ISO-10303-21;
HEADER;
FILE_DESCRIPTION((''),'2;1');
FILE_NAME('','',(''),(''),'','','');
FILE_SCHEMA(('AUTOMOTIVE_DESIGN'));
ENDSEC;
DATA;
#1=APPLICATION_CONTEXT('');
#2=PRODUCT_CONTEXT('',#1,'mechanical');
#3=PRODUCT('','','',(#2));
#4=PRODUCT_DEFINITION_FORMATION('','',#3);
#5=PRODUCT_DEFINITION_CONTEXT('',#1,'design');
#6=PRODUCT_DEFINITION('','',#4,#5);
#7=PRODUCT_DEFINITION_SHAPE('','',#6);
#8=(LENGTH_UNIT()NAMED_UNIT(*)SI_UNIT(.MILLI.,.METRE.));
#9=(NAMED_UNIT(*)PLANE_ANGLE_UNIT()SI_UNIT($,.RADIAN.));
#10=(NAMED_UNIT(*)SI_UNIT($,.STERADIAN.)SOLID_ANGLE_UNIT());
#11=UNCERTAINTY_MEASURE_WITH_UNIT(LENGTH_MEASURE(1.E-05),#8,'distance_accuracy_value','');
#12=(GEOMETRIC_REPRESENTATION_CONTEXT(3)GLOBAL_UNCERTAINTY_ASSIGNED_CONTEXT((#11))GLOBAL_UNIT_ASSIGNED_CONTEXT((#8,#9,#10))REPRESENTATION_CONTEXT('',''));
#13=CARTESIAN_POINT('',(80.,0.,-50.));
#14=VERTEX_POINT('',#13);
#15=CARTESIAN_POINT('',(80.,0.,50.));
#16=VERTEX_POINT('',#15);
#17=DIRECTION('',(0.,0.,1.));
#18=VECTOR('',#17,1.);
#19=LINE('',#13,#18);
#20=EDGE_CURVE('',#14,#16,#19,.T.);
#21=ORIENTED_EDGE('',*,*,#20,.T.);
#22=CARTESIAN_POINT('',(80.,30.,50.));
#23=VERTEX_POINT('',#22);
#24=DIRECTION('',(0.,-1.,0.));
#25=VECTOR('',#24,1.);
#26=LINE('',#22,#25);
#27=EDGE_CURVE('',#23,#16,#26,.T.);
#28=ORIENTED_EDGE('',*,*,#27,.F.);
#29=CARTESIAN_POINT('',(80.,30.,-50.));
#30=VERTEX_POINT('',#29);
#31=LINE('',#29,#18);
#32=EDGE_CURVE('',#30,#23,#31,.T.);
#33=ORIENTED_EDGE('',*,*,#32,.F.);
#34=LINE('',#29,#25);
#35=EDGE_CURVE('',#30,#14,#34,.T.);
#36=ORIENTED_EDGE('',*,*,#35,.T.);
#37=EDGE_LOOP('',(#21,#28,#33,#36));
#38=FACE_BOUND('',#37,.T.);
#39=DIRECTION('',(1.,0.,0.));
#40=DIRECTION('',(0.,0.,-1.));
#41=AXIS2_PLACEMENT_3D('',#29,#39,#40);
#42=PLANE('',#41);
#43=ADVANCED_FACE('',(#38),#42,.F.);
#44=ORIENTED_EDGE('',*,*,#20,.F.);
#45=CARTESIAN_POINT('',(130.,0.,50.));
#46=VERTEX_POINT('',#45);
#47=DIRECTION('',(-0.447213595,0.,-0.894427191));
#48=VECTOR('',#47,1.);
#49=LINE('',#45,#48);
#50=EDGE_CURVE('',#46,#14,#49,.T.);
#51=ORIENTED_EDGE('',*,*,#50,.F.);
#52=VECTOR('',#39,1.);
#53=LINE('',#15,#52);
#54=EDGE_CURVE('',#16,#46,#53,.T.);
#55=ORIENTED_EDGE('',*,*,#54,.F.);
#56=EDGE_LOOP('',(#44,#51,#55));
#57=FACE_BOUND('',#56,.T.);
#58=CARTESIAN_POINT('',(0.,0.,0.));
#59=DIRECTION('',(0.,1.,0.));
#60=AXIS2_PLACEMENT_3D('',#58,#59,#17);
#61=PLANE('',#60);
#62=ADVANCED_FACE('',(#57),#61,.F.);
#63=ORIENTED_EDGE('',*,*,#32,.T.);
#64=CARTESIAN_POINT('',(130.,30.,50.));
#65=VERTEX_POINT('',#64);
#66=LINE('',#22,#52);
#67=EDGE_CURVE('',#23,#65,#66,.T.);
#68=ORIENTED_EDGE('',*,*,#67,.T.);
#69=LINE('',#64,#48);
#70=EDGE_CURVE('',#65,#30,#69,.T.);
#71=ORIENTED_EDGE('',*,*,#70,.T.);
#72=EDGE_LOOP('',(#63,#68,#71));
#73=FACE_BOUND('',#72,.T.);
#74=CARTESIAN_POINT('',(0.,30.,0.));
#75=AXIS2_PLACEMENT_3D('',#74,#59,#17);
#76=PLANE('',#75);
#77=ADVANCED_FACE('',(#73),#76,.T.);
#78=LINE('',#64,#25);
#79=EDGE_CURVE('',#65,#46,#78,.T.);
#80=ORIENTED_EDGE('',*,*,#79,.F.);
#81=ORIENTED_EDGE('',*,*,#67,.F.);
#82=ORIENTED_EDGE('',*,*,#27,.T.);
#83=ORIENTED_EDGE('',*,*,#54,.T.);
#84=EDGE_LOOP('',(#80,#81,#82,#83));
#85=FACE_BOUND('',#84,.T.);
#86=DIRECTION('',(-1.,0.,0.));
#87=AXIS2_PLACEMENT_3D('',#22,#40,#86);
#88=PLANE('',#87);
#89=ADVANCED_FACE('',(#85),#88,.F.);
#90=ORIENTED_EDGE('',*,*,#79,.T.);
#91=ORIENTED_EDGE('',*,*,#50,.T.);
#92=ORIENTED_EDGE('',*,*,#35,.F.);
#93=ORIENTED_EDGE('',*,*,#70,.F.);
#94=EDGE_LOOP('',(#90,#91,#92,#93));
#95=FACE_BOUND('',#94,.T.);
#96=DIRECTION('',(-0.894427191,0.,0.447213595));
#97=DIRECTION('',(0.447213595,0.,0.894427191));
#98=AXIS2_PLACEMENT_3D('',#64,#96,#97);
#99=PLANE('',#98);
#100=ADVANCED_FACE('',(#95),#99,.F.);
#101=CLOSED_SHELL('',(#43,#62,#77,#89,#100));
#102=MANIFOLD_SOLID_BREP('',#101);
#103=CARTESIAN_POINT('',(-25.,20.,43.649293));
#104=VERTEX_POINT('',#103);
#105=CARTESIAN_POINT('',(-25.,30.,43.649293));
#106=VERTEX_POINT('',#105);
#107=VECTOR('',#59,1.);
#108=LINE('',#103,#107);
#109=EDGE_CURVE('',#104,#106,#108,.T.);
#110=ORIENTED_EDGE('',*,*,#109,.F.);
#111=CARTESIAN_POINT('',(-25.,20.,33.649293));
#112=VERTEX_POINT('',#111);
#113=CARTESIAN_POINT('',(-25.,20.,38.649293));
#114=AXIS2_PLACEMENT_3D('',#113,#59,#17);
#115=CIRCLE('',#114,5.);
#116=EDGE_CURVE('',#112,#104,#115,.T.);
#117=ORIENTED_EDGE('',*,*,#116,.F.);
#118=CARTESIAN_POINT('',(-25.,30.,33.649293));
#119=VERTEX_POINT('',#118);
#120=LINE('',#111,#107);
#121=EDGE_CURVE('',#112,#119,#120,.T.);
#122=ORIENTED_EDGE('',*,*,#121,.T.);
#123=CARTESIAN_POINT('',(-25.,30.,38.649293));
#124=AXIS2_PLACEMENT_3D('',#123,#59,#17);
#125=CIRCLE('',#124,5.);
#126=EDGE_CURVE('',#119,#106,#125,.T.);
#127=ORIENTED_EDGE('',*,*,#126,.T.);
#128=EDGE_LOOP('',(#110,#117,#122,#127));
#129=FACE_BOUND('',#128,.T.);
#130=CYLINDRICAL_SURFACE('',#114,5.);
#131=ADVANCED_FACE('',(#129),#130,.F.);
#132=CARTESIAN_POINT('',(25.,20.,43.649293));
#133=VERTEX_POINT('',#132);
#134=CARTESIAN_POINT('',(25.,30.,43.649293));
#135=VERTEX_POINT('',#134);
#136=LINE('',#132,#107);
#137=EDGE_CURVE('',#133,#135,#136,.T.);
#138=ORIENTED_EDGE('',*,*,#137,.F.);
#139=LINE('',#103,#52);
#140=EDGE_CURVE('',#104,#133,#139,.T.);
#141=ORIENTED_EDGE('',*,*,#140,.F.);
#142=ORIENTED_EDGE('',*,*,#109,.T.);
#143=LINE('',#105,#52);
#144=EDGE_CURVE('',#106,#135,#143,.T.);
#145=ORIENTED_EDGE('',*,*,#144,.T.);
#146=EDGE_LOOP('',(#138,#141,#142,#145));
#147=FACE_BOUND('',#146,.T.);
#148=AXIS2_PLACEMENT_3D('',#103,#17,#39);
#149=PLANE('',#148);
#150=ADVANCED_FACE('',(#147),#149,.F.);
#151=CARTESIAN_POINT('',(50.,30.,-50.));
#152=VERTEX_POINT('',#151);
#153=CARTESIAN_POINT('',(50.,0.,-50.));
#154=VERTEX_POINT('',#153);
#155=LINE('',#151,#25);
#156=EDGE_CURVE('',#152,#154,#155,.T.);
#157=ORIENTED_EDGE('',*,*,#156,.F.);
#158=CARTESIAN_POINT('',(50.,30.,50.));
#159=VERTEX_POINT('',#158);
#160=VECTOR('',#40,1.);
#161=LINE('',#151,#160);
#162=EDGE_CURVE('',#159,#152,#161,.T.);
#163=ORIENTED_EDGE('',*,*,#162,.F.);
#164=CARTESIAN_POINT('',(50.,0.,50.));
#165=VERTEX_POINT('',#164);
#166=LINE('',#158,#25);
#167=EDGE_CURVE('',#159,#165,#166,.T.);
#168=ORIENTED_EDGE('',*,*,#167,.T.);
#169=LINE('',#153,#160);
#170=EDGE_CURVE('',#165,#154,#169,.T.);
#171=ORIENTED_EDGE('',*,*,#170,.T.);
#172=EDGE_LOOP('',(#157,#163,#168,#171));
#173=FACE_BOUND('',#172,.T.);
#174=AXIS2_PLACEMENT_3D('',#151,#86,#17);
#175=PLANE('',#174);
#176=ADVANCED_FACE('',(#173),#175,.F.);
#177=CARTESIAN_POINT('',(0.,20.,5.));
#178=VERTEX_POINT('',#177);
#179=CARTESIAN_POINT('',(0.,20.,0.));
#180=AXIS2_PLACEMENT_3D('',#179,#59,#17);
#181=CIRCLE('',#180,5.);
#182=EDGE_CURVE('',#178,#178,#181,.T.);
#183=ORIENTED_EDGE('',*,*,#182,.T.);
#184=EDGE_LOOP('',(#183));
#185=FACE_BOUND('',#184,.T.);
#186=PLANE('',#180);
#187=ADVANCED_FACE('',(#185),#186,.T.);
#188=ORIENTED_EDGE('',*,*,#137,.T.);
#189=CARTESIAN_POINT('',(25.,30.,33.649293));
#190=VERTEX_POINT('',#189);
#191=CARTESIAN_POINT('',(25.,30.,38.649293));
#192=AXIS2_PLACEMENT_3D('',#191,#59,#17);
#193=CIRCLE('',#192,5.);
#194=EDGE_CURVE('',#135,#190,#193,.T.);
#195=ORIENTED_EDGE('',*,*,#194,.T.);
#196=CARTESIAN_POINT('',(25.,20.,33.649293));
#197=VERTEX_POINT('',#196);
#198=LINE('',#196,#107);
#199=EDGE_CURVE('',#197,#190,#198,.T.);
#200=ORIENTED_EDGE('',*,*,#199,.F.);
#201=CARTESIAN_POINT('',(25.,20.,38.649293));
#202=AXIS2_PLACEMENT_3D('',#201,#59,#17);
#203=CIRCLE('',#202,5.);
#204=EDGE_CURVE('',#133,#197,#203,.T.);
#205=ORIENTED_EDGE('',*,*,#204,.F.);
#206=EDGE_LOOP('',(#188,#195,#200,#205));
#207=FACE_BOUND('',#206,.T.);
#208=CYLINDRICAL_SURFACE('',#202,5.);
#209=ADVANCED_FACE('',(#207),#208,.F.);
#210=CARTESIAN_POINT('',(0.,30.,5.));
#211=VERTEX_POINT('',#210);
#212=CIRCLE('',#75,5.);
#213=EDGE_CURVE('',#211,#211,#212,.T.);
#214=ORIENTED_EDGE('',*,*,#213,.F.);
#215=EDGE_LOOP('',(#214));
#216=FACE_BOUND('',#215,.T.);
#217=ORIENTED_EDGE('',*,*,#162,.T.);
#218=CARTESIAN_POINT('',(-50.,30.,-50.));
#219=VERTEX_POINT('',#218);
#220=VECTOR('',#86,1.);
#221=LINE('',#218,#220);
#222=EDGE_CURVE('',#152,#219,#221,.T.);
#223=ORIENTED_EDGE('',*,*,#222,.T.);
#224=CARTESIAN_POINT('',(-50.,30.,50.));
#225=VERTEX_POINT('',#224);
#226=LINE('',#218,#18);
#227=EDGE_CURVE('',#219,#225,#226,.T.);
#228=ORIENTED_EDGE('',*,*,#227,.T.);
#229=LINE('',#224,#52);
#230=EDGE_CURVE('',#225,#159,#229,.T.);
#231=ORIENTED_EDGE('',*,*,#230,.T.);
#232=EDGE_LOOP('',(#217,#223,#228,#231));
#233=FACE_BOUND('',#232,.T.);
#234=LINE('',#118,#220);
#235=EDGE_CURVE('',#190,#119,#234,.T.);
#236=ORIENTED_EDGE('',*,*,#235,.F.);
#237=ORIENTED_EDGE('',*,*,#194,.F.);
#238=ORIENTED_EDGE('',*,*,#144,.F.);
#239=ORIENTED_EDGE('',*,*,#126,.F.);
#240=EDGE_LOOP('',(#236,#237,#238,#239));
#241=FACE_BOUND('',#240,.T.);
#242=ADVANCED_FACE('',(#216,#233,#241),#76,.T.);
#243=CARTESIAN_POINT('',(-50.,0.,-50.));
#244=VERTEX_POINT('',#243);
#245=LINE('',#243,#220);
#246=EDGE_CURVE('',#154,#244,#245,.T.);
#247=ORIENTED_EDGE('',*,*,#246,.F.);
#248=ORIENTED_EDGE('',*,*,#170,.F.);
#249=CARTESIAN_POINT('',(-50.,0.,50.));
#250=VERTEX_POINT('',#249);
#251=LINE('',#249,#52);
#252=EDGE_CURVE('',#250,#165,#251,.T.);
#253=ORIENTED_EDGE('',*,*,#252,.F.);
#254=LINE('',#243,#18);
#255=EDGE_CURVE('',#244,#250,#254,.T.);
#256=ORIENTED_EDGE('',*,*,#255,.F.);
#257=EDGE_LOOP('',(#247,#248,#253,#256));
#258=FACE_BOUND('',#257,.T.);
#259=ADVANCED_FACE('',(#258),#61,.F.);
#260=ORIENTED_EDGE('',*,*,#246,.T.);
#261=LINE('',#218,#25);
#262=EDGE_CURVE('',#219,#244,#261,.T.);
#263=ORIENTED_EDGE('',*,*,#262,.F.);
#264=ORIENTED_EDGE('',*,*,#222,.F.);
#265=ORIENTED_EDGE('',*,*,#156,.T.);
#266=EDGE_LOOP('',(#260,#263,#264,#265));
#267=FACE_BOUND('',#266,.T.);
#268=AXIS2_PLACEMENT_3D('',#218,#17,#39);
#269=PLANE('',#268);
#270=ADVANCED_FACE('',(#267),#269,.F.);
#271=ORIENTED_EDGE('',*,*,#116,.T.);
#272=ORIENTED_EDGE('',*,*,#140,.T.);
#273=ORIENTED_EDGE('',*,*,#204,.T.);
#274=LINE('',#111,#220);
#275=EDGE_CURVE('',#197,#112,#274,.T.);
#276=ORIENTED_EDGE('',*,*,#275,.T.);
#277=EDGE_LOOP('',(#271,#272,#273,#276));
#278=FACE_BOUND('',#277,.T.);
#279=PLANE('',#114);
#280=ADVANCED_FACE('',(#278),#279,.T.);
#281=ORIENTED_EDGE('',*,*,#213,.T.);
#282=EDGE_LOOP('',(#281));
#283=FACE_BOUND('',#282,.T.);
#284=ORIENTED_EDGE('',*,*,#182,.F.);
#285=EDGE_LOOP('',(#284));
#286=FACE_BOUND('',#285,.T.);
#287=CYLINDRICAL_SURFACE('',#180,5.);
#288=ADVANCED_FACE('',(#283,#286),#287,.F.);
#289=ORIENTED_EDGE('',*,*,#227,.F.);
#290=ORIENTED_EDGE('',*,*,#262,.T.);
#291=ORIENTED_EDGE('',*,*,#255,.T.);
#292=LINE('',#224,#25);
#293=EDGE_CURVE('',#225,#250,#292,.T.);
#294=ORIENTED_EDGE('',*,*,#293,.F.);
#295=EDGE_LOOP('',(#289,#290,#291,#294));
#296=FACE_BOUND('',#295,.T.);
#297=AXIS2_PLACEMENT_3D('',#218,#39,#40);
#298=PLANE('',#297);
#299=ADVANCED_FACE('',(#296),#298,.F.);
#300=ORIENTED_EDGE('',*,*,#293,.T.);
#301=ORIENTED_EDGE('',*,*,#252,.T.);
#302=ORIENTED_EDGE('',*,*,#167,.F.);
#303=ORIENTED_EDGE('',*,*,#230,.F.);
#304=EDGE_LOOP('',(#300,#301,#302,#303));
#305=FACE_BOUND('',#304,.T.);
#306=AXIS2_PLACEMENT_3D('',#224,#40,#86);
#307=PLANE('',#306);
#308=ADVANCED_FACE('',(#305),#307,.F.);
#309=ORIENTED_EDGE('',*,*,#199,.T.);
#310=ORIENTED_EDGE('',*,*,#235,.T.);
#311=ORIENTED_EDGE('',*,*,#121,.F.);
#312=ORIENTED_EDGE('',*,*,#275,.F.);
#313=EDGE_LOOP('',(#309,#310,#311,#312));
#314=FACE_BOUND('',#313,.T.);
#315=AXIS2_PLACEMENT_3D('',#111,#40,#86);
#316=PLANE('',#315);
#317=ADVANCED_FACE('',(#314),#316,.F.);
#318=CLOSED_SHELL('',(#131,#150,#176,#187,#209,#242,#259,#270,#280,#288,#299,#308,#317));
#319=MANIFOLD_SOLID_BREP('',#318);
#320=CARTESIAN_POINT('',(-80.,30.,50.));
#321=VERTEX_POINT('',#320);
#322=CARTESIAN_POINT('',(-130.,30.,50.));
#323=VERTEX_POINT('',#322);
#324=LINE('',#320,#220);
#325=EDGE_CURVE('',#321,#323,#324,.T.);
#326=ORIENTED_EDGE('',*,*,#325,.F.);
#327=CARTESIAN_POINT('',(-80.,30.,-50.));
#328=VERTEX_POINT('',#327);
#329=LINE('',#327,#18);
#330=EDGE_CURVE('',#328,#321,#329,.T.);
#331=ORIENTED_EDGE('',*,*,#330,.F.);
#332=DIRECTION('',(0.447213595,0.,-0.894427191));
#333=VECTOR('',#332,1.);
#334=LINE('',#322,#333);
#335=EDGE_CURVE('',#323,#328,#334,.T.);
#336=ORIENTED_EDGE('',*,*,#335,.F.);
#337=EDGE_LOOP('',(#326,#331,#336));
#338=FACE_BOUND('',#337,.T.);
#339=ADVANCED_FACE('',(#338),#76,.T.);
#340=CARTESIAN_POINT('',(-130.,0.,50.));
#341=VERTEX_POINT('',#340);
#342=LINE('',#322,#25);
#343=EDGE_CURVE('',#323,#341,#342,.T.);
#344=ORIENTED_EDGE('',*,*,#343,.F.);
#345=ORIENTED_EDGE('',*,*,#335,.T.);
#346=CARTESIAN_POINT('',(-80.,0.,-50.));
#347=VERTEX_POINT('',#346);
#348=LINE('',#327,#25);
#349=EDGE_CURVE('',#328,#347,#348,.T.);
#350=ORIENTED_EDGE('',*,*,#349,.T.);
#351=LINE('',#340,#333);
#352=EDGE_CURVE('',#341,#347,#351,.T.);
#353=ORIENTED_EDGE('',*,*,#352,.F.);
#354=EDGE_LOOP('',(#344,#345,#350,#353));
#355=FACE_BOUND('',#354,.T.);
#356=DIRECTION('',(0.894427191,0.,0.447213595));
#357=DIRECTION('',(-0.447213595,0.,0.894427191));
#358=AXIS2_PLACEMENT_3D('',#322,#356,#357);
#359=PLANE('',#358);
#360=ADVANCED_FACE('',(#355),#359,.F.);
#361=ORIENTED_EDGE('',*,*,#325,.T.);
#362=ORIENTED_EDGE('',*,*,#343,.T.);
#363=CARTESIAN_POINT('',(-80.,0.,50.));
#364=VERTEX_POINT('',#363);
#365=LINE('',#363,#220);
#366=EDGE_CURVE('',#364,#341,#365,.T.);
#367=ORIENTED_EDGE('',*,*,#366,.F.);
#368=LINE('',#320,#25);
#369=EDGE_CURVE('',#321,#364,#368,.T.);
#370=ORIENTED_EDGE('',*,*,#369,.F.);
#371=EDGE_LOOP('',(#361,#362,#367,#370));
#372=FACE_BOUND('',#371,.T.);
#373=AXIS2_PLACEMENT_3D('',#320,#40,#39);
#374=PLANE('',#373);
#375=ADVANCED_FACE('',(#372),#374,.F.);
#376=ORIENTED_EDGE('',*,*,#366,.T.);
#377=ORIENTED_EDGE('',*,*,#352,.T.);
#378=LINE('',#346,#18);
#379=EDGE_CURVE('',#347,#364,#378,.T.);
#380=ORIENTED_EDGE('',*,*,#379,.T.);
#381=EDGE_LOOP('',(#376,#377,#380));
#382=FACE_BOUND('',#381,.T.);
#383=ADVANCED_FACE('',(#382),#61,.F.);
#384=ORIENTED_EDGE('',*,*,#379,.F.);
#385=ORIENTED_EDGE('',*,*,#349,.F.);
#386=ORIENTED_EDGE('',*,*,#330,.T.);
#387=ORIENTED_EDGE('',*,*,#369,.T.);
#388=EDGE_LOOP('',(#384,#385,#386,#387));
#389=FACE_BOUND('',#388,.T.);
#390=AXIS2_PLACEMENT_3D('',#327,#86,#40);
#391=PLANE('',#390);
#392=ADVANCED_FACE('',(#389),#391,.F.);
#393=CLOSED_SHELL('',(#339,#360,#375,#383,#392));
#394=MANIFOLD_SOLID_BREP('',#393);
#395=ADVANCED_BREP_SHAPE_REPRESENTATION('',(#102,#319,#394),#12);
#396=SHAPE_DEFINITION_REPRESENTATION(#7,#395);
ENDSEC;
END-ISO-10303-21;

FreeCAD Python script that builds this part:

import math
import FreeCAD as App
import Part
import Sketcher
from FreeCAD import Vector
Q = App.Units.Quantity

doc = App.newDocument("Part")
body = doc.addObject("PartDesign::Body", "Body")

# Sketch on XZ plane
sketch1 = body.newObject("Sketcher::SketchObject", "Sketch")
sketch1.AttachmentSupport = (doc.getObject("XZ_Plane"), [""])
sketch1.MapMode = "FlatFace"
sketch1.addGeometry([
    Part.LineSegment(Vector(80, 50, 0), Vector(130, 50, 0)),
    Part.LineSegment(Vector(130, 50, 0), Vector(80, -50, 0)),
    Part.LineSegment(Vector(80, -50, 0), Vector(80, 50, 0)),
], False)
sketch1.addConstraint([
    Sketcher.Constraint("Coincident", 0, 2, 1, 1),
    Sketcher.Constraint("Coincident", 1, 2, 2, 1),
    Sketcher.Constraint("Coincident", 2, 2, 0, 1),
    Sketcher.Constraint("Horizontal", 0),
    Sketcher.Constraint("Vertical", 2),
    Sketcher.Constraint("DistanceX", 0, 1, 0, 2, Q("50 mm")),
    Sketcher.Constraint("DistanceY", 2, 1, 2, 2, Q("100 mm")),
    Sketcher.Constraint("DistanceX", -1, 1, 0, 2, Q("130 mm")),
    Sketcher.Constraint("DistanceY", -1, 1, 0, 2, Q("50 mm")),
])
pad1 = body.newObject("PartDesign::Pad", "Pad")
pad1.Profile = sketch1
pad1.Length = 30
pad1.Reversed = True
body2 = doc.addObject("PartDesign::Body", "Body001")

# Sketch on XZ plane
sketch2 = body2.newObject("Sketcher::SketchObject", "Sketch001")
sketch2.AttachmentSupport = (doc.getObject("XZ_Plane001"), [""])
sketch2.MapMode = "FlatFace"
sketch2.addGeometry([
    Part.LineSegment(Vector(-50, -50, 0), Vector(-50, 50, 0)),
    Part.LineSegment(Vector(-50, 50, 0), Vector(50, 50, 0)),
    Part.LineSegment(Vector(50, 50, 0), Vector(50, -50, 0)),
    Part.LineSegment(Vector(50, -50, 0), Vector(-50, -50, 0)),
], False)
sketch2.addConstraint([
    Sketcher.Constraint("Coincident", 0, 2, 1, 1),
    Sketcher.Constraint("Coincident", 1, 2, 2, 1),
    Sketcher.Constraint("Coincident", 2, 2, 3, 1),
    Sketcher.Constraint("Coincident", 3, 2, 0, 1),
    Sketcher.Constraint("Vertical", 0),
    Sketcher.Constraint("Horizontal", 1),
    Sketcher.Constraint("Vertical", 2),
    Sketcher.Constraint("Horizontal", 3),
    Sketcher.Constraint("Symmetric", 0, 2, 2, 2, -1, 1),
    Sketcher.Constraint("Equal", 3, 0),
    Sketcher.Constraint("DistanceX", 1, 1, 1, 2, Q("100 mm")),
])
pad2 = body2.newObject("PartDesign::Pad", "Pad001")
pad2.Profile = sketch2
pad2.Length = 30
pad2.Reversed = True

# Sketch on XZ plane
sketch3 = body2.newObject("Sketcher::SketchObject", "Sketch002")
sketch3.AttachmentSupport = (doc.getObject("XZ_Plane001"), [""])
sketch3.MapMode = "FlatFace"
sketch3.AttachmentOffset = App.Placement(Vector(0, 0, -30), App.Rotation())
sketch3.addGeometry([
    Part.Circle(Vector(0, 0, 0), Vector(0, 0, 1), 5),  # 0
    Part.LineSegment(Vector(25, 34, 0), Vector(-25, 34, 0)),  # 1
    Part.ArcOfCircle(Part.Circle(Vector(-25, 39, 0), Vector(0, 0, 1), 5), math.radians(90), math.radians(270)),  # 2
    Part.LineSegment(Vector(-25, 44, 0), Vector(25, 44, 0)),  # 3
    Part.ArcOfCircle(Part.Circle(Vector(25, 39, 0), Vector(0, 0, 1), 5), math.radians(-90), math.radians(90)),  # 4
], False)
sketch3.addConstraint([
    Sketcher.Constraint("Tangent", 1, 2, 2, 2),
    Sketcher.Constraint("Tangent", 2, 1, 3, 1),
    Sketcher.Constraint("Tangent", 3, 2, 4, 2),
    Sketcher.Constraint("Tangent", 4, 1, 1, 1),
    Sketcher.Constraint("Horizontal", 1),
    Sketcher.Constraint("Horizontal", 3),
    Sketcher.Constraint("Coincident", 0, 3, -1, 1),
    Sketcher.Constraint("Equal", 0, 2),
    Sketcher.Constraint("Diameter", 0, Q("10 mm")),
    Sketcher.Constraint("DistanceX", 1, 2, 1, 1, Q("50 mm")),
    Sketcher.Constraint("DistanceX", 2, 3, -1, 1, Q("25 mm")),
    Sketcher.Constraint("DistanceY", -1, 1, 2, 3, Q("38.649293 mm")),
])
pocket1 = body2.newObject("PartDesign::Pocket", "Pocket")
pocket1.Profile = sketch3
pocket1.Length = 10
pocket1.Reversed = True
body3 = doc.addObject("PartDesign::Body", "Body002")
doc.recompute()

mirroring = doc.addObject("Part::Mirroring", "Mirroring")
mirroring.Source = body
mirroring.Base = Vector(0, 0, 0)
mirroring.Normal = Vector(1, 0, 0)
body3.BaseFeature = mirroring
doc.recompute()
mirroring.Visibility = False

doc.recompute()
